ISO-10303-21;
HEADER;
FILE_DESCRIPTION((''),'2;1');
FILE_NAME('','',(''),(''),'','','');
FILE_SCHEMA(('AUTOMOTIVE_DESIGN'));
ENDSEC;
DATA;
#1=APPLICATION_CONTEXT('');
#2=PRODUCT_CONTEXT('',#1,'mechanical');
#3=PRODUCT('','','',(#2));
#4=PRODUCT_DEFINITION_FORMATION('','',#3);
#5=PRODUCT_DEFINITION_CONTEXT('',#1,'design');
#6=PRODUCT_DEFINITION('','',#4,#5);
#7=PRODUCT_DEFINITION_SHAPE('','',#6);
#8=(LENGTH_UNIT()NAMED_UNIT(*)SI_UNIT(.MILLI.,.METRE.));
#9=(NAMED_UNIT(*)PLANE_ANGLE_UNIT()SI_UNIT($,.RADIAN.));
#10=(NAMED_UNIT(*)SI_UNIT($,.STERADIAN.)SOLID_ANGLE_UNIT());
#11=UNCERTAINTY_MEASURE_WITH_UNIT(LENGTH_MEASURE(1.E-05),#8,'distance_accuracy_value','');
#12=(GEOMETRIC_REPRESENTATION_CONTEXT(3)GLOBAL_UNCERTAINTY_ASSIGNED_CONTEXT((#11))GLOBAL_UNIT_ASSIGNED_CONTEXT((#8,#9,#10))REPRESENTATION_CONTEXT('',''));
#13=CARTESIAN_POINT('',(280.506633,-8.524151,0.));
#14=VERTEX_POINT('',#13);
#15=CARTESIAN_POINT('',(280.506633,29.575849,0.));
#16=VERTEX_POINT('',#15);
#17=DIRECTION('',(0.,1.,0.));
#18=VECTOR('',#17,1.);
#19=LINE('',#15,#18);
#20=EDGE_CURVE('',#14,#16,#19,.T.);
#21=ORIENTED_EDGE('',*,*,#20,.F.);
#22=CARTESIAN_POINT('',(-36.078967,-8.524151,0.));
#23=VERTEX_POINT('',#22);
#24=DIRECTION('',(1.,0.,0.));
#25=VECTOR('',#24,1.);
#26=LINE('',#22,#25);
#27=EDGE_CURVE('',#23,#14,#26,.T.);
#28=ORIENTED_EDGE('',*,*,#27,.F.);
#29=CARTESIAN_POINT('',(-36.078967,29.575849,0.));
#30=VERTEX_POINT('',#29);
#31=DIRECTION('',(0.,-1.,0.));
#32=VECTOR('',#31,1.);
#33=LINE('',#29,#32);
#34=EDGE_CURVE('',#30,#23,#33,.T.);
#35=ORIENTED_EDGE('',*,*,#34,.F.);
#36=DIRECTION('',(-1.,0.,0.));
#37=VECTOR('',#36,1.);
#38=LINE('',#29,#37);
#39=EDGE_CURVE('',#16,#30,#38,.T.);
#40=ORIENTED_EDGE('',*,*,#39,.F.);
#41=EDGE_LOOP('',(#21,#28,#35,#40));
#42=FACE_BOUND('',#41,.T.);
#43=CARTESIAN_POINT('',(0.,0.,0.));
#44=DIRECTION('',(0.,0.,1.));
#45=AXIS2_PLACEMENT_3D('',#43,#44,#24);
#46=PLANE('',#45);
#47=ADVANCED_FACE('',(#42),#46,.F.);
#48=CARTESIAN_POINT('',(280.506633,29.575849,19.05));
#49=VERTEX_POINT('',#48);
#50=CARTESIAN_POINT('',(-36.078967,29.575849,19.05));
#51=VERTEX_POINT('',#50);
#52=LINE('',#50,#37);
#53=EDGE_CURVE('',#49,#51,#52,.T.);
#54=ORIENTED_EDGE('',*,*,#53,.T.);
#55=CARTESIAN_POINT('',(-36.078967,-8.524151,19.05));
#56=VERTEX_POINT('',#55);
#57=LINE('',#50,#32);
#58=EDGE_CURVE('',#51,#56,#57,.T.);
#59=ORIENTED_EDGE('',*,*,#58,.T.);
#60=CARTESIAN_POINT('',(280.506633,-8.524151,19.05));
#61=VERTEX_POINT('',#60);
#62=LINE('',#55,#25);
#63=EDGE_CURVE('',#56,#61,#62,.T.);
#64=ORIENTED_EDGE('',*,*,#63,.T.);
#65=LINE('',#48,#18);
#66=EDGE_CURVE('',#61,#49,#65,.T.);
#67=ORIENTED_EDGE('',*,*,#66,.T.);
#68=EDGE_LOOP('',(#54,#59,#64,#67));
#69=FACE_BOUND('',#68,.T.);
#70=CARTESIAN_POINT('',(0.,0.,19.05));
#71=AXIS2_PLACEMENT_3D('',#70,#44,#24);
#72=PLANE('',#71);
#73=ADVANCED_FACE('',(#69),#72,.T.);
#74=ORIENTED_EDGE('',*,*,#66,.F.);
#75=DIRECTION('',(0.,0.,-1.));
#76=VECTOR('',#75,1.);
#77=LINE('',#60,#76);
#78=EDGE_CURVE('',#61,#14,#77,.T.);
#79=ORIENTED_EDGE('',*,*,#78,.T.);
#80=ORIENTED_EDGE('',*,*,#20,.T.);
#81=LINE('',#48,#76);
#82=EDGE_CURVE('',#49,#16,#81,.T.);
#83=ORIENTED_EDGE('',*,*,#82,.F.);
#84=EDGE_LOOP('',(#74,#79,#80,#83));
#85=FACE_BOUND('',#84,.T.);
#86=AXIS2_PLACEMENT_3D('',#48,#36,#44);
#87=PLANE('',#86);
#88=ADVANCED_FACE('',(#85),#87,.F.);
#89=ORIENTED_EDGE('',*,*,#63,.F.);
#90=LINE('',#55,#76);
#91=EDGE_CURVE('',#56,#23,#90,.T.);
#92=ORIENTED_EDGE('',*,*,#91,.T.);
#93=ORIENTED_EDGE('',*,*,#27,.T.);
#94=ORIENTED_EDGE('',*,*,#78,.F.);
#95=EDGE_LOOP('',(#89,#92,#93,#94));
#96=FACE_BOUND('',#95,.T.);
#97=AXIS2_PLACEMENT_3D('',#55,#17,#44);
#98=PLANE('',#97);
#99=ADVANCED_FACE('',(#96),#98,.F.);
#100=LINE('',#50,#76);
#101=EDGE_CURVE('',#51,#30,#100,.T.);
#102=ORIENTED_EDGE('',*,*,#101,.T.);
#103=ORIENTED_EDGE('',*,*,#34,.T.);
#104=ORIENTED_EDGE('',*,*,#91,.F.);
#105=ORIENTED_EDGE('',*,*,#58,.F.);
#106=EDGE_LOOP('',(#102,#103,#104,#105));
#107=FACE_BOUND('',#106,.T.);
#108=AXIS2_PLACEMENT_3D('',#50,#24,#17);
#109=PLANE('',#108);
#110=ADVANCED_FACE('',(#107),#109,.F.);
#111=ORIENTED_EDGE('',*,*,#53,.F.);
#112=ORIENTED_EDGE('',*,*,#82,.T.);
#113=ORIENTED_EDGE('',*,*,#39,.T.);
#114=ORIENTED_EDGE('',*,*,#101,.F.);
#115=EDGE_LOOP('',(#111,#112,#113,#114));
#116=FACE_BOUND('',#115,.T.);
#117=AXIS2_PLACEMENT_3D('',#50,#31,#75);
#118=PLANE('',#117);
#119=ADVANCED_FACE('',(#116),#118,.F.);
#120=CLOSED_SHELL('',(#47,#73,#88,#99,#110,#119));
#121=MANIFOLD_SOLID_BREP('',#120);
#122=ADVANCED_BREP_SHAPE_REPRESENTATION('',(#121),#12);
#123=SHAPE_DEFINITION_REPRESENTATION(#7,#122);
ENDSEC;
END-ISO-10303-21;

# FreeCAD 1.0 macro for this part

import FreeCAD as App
import Part
import Sketcher
from FreeCAD import Vector
Q = App.Units.Quantity


def add_polygon(sketch, points):
    """Adds a closed chain of lines whose ends are joined by coincident constraints."""
    first, n = sketch.GeometryCount, len(points)
    for a, b in zip(points, points[1:] + points[:1]):
        sketch.addGeometry(Part.LineSegment(App.Vector(*a, 0), App.Vector(*b, 0)), False)
    for i in range(n):
        sketch.addConstraint(Sketcher.Constraint("Coincident", first + i, 2, first + (i + 1) % n, 1))

doc = App.newDocument("Part")
body = doc.addObject("PartDesign::Body", "Body")

sketch1 = doc.addObject("Sketcher::SketchObject", "Sketch")
body.addObject(sketch1)
sketch1.AttachmentSupport = (doc.XY_Plane, [""])
sketch1.MapMode = "FlatFace"
add_polygon(sketch1, [(-36.078967, 29.575849), (-36.078967, -8.524151), (280.506633, -8.524151), (280.506633, 29.575849)])
sketch1.addConstraint(Sketcher.Constraint("Vertical", 0))
sketch1.addConstraint(Sketcher.Constraint("Horizontal", 1))
sketch1.addConstraint(Sketcher.Constraint("Vertical", 2))
sketch1.addConstraint(Sketcher.Constraint("Horizontal", 3))
sketch1.addConstraint(Sketcher.Constraint("DistanceY", 0, 2, 0, 1, Q("1.5 in")))
sketch1.addConstraint(Sketcher.Constraint("DistanceX", 1, 1, 1, 2, Q("12.464 in")))
sketch1.addConstraint(Sketcher.Constraint("DistanceY", 0, 2, -1, 1, Q("8.524151 mm")))
sketch1.addConstraint(Sketcher.Constraint("DistanceX", 0, 2, -1, 1, Q("36.078967 mm")))
pad1 = doc.addObject("PartDesign::Pad", "Pad")
body.addObject(pad1)
pad1.Profile = sketch1
pad1.Length = Q("0.75 in")

doc.recompute()
